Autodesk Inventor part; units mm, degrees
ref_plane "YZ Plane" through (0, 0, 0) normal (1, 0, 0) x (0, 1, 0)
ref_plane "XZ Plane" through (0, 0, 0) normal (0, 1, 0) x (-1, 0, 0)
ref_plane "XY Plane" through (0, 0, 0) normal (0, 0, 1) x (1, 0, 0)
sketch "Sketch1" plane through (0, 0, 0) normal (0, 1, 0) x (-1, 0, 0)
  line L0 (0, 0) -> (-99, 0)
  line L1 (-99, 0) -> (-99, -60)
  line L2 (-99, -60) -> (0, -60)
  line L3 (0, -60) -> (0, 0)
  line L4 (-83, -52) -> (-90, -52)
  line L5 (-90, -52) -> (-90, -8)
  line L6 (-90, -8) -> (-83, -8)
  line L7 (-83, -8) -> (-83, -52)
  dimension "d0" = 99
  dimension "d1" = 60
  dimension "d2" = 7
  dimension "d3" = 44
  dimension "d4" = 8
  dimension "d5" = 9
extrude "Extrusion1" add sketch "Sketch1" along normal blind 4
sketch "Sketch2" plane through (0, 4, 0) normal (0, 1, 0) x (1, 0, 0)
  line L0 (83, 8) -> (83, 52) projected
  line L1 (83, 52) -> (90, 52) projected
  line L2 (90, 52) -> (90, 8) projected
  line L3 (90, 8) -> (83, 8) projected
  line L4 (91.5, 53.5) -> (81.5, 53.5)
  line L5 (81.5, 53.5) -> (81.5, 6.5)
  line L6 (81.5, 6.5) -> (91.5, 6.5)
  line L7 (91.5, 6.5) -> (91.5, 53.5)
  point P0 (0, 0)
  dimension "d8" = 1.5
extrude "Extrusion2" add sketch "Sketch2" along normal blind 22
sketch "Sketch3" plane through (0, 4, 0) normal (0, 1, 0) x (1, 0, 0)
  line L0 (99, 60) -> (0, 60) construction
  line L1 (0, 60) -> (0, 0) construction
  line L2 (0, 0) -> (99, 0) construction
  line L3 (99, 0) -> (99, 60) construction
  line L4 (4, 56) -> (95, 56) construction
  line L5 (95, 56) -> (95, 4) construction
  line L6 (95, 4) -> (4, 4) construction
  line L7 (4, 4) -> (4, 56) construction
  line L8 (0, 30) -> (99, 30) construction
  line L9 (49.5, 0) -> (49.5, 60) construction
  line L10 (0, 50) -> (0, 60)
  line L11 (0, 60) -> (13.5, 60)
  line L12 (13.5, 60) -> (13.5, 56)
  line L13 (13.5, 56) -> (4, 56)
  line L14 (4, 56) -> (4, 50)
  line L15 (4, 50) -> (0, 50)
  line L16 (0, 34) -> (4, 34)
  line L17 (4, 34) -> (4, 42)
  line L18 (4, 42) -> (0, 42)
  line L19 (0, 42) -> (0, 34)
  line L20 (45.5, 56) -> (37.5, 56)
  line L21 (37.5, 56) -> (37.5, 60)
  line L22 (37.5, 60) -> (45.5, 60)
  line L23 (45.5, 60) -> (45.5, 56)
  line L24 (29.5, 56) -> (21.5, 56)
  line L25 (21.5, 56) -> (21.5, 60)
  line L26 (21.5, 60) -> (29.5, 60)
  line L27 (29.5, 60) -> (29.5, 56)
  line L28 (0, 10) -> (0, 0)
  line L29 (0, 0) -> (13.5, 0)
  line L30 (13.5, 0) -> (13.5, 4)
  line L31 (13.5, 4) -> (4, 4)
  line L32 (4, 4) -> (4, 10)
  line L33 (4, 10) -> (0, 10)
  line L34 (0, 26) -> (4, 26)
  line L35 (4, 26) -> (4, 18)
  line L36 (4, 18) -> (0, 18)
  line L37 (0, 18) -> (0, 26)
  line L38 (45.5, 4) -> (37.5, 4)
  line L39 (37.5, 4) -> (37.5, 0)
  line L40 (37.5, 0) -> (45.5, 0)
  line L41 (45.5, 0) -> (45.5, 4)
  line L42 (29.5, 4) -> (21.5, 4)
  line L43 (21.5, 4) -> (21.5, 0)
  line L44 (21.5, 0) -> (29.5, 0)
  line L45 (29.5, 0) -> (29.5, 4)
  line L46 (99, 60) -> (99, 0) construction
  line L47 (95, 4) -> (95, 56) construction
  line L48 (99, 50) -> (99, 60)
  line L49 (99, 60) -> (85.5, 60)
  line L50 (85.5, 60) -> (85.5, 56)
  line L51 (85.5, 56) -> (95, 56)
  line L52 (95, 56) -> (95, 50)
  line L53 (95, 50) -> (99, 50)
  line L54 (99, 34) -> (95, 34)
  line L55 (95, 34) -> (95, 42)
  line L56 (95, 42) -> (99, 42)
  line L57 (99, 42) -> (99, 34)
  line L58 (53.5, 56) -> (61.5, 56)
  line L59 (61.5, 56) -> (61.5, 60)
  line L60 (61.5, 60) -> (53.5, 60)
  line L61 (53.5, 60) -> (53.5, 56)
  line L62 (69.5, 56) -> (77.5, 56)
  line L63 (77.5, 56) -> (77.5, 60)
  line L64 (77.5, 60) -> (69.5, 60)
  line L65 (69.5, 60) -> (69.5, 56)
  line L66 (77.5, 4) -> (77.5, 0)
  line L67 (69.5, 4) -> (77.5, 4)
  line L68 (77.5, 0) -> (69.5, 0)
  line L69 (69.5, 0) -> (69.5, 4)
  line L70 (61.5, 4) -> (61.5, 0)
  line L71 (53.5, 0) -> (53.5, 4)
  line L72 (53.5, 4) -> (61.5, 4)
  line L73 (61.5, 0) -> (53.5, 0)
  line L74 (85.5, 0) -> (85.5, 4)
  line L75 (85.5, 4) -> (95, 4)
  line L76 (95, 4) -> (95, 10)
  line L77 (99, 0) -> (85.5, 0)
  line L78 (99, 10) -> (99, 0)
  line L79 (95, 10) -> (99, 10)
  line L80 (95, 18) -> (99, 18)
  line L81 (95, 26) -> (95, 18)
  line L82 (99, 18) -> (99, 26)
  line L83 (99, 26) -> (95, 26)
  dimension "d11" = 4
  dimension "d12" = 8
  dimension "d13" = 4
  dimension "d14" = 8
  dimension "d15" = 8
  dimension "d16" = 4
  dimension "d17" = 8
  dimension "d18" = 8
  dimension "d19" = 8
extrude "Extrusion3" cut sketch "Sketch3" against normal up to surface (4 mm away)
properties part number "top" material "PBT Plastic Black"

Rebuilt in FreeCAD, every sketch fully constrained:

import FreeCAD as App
import Part
import Sketcher
from FreeCAD import Vector

doc = App.newDocument("Part")
body = doc.addObject("PartDesign::Body", "Body")

# Sketch on XZ plane
sketch1 = body.newObject("Sketcher::SketchObject", "Sketch")
sketch1.AttachmentSupport = (doc.getObject("XZ_Plane"), [""])
sketch1.MapMode = "FlatFace"
sketch1.addGeometry([
    Part.LineSegment(Vector(0, -60, 0), Vector(0, 0, 0)),  # 0
    Part.LineSegment(Vector(0, 0, 0), Vector(99, 0, 0)),  # 1
    Part.LineSegment(Vector(99, 0, 0), Vector(99, -60, 0)),  # 2
    Part.LineSegment(Vector(99, -60, 0), Vector(0, -60, 0)),  # 3
    Part.LineSegment(Vector(83, -8, 0), Vector(83, -52, 0)),  # 4
    Part.LineSegment(Vector(83, -52, 0), Vector(90, -52, 0)),  # 5
    Part.LineSegment(Vector(90, -52, 0), Vector(90, -8, 0)),  # 6
    Part.LineSegment(Vector(90, -8, 0), Vector(83, -8, 0)),  # 7
], False)
sketch1.addConstraint([
    Sketcher.Constraint("Coincident", 0, 2, 1, 1),
    Sketcher.Constraint("Coincident", 1, 2, 2, 1),
    Sketcher.Constraint("Coincident", 2, 2, 3, 1),
    Sketcher.Constraint("Coincident", 3, 2, 0, 1),
    Sketcher.Constraint("Coincident", 4, 2, 5, 1),
    Sketcher.Constraint("Coincident", 5, 2, 6, 1),
    Sketcher.Constraint("Coincident", 6, 2, 7, 1),
    Sketcher.Constraint("Coincident", 7, 2, 4, 1),
    Sketcher.Constraint("Vertical", 0),
    Sketcher.Constraint("Horizontal", 1),
    Sketcher.Constraint("Vertical", 2),
    Sketcher.Constraint("Horizontal", 3),
    Sketcher.Constraint("Vertical", 4),
    Sketcher.Constraint("Horizontal", 5),
    Sketcher.Constraint("Vertical", 6),
    Sketcher.Constraint("Horizontal", 7),
    Sketcher.Constraint("Coincident", 0, 2, -1, 1),
    Sketcher.Constraint("DistanceX", 1, 1, 1, 2, 99.0),
    Sketcher.Constraint("DistanceX", 5, 1, 5, 2, 7.0),
    Sketcher.Constraint("DistanceY", 0, 1, 0, 2, 60.0),
    Sketcher.Constraint("DistanceY", 4, 2, 4, 1, 44.0),
    Sketcher.Constraint("DistanceY", 6, 2, -1, 1, 8.0),
    Sketcher.Constraint("DistanceX", 5, 2, 2, 2, 9.0),
])
pad1 = body.newObject("PartDesign::Pad", "Pad")
pad1.Profile = sketch1
pad1.Length = 4
pad1.Reversed = True

# Sketch on XZ plane
sketch2 = body.newObject("Sketcher::SketchObject", "Sketch001")
sketch2.AttachmentSupport = (doc.getObject("XZ_Plane"), [""])
sketch2.MapMode = "FlatFace"
sketch2.AttachmentOffset = App.Placement(Vector(0, 0, -4), App.Rotation())
sketch2.addGeometry([
    Part.LineSegment(Vector(91.5, -6.5, 0), Vector(91.5, -53.5, 0)),  # 0
    Part.LineSegment(Vector(91.5, -53.5, 0), Vector(81.5, -53.5, 0)),  # 1
    Part.LineSegment(Vector(81.5, -53.5, 0), Vector(81.5, -6.5, 0)),  # 2
    Part.LineSegment(Vector(81.5, -6.5, 0), Vector(91.5, -6.5, 0)),  # 3
    Part.LineSegment(Vector(90, -8, 0), Vector(83, -8, 0)),  # 4
    Part.LineSegment(Vector(83, -8, 0), Vector(83, -52, 0)),  # 5
    Part.LineSegment(Vector(83, -52, 0), Vector(90, -52, 0)),  # 6
    Part.LineSegment(Vector(90, -52, 0), Vector(90, -8, 0)),  # 7
], False)
sketch2.addConstraint([
    Sketcher.Constraint("Coincident", 0, 2, 1, 1),
    Sketcher.Constraint("Coincident", 1, 2, 2, 1),
    Sketcher.Constraint("Coincident", 2, 2, 3, 1),
    Sketcher.Constraint("Coincident", 3, 2, 0, 1),
    Sketcher.Constraint("Coincident", 4, 2, 5, 1),
    Sketcher.Constraint("Coincident", 5, 2, 6, 1),
    Sketcher.Constraint("Coincident", 6, 2, 7, 1),
    Sketcher.Constraint("Coincident", 7, 2, 4, 1),
    Sketcher.Constraint("Vertical", 0),
    Sketcher.Constraint("Horizontal", 1),
    Sketcher.Constraint("Vertical", 2),
    Sketcher.Constraint("Horizontal", 3),
    Sketcher.Constraint("Horizontal", 4),
    Sketcher.Constraint("Vertical", 5),
    Sketcher.Constraint("Horizontal", 6),
    Sketcher.Constraint("Vertical", 7),
    Sketcher.Constraint("DistanceX", 2, 2, 4, 2, 1.5),
    Sketcher.Constraint("DistanceY", 4, 2, 2, 2, 1.5),
    Sketcher.Constraint("DistanceY", 1, 2, 5, 2, 1.5),
    Sketcher.Constraint("DistanceX", 6, 2, 0, 2, 1.5),
    Sketcher.Constraint("DistanceX", 1, 2, 1, 1, 10.0),
    Sketcher.Constraint("DistanceY", 0, 2, 0, 1, 47.0),
    Sketcher.Constraint("DistanceX", -1, 1, 4, 2, 83.0),
    Sketcher.Constraint("DistanceY", 4, 2, -1, 1, 8.0),
])
pad2 = body.newObject("PartDesign::Pad", "Pad001")
pad2.Profile = sketch2
pad2.Length = 22
pad2.Reversed = True

# Sketch on XZ plane
sketch3 = body.newObject("Sketcher::SketchObject", "Sketch002")
sketch3.AttachmentSupport = (doc.getObject("XZ_Plane"), [""])
sketch3.MapMode = "FlatFace"
sketch3.AttachmentOffset = App.Placement(Vector(0, 0, -4), App.Rotation())
sketch3.addGeometry([
    Part.LineSegment(Vector(0, -60, 0), Vector(0, -50, 0)),  # 0
    Part.LineSegment(Vector(0, -50, 0), Vector(4, -50, 0)),  # 1
    Part.LineSegment(Vector(4, -50, 0), Vector(4, -56, 0)),  # 2
    Part.LineSegment(Vector(4, -56, 0), Vector(13.5, -56, 0)),  # 3
    Part.LineSegment(Vector(13.5, -56, 0), Vector(13.5, -60, 0)),  # 4
    Part.LineSegment(Vector(13.5, -60, 0), Vector(0, -60, 0)),  # 5
    Part.LineSegment(Vector(0, -42, 0), Vector(0, -34, 0)),  # 6
    Part.LineSegment(Vector(0, -34, 0), Vector(4, -34, 0)),  # 7
    Part.LineSegment(Vector(4, -34, 0), Vector(4, -42, 0)),  # 8
    Part.LineSegment(Vector(4, -42, 0), Vector(0, -42, 0)),  # 9
    Part.LineSegment(Vector(37.5, -56, 0), Vector(45.5, -56, 0)),  # 10
    Part.LineSegment(Vector(45.5, -56, 0), Vector(45.5, -60, 0)),  # 11
    Part.LineSegment(Vector(45.5, -60, 0), Vector(37.5, -60, 0)),  # 12
    Part.LineSegment(Vector(37.5, -60, 0), Vector(37.5, -56, 0)),  # 13
    Part.LineSegment(Vector(21.5, -56, 0), Vector(29.5, -56, 0)),  # 14
    Part.LineSegment(Vector(29.5, -56, 0), Vector(29.5, -60, 0)),  # 15
    Part.LineSegment(Vector(29.5, -60, 0), Vector(21.5, -60, 0)),  # 16
    Part.LineSegment(Vector(21.5, -60, 0), Vector(21.5, -56, 0)),  # 17
    Part.LineSegment(Vector(4, -10, 0), Vector(0, -10, 0)),  # 18
    Part.LineSegment(Vector(0, -10, 0), Vector(0, 0, 0)),  # 19
    Part.LineSegment(Vector(0, 0, 0), Vector(13.5, 0, 0)),  # 20
    Part.LineSegment(Vector(13.5, 0, 0), Vector(13.5, -4, 0)),  # 21
    Part.LineSegment(Vector(13.5, -4, 0), Vector(4, -4, 0)),  # 22
    Part.LineSegment(Vector(4, -4, 0), Vector(4, -10, 0)),  # 23
    Part.LineSegment(Vector(4, -26, 0), Vector(0, -26, 0)),  # 24
    Part.LineSegment(Vector(0, -26, 0), Vector(0, -18, 0)),  # 25
    Part.LineSegment(Vector(0, -18, 0), Vector(4, -18, 0)),  # 26
    Part.LineSegment(Vector(4, -18, 0), Vector(4, -26, 0)),  # 27
    Part.LineSegment(Vector(45.5, 0, 0), Vector(45.5, -4, 0)),  # 28
    Part.LineSegment(Vector(45.5, -4, 0), Vector(37.5, -4, 0)),  # 29
    Part.LineSegment(Vector(37.5, -4, 0), Vector(37.5, 0, 0)),  # 30
    Part.LineSegment(Vector(37.5, 0, 0), Vector(45.5, 0, 0)),  # 31
    Part.LineSegment(Vector(29.5, 0, 0), Vector(29.5, -4, 0)),  # 32
    Part.LineSegment(Vector(29.5, -4, 0), Vector(21.5, -4, 0)),  # 33
    Part.LineSegment(Vector(21.5, -4, 0), Vector(21.5, 0, 0)),  # 34
    Part.LineSegment(Vector(21.5, 0, 0), Vector(29.5, 0, 0)),  # 35
    Part.LineSegment(Vector(95, -50, 0), Vector(99, -50, 0)),  # 36
    Part.LineSegment(Vector(99, -50, 0), Vector(99, -60, 0)),  # 37
    Part.LineSegment(Vector(99, -60, 0), Vector(85.5, -60, 0)),  # 38
    Part.LineSegment(Vector(85.5, -60, 0), Vector(85.5, -56, 0)),  # 39
    Part.LineSegment(Vector(85.5, -56, 0), Vector(95, -56, 0)),  # 40
    Part.LineSegment(Vector(95, -56, 0), Vector(95, -50, 0)),  # 41
    Part.LineSegment(Vector(95, -34, 0), Vector(99, -34, 0)),  # 42
    Part.LineSegment(Vector(99, -34, 0), Vector(99, -42, 0)),  # 43
    Part.LineSegment(Vector(99, -42, 0), Vector(95, -42, 0)),  # 44
    Part.LineSegment(Vector(95, -42, 0), Vector(95, -34, 0)),  # 45
    Part.LineSegment(Vector(53.5, -60, 0), Vector(53.5, -56, 0)),  # 46
    Part.LineSegment(Vector(53.5, -56, 0), Vector(61.5, -56, 0)),  # 47
    Part.LineSegment(Vector(61.5, -56, 0), Vector(61.5, -60, 0)),  # 48
    Part.LineSegment(Vector(61.5, -60, 0), Vector(53.5, -60, 0)),  # 49
    Part.LineSegment(Vector(69.5, -60, 0), Vector(69.5, -56, 0)),  # 50
    Part.LineSegment(Vector(69.5, -56, 0), Vector(77.5, -56, 0)),  # 51
    Part.LineSegment(Vector(77.5, -56, 0), Vector(77.5, -60, 0)),  # 52
    Part.LineSegment(Vector(77.5, -60, 0), Vector(69.5, -60, 0)),  # 53
    Part.LineSegment(Vector(77.5, 0, 0), Vector(77.5, -4, 0)),  # 54
    Part.LineSegment(Vector(77.5, -4, 0), Vector(69.5, -4, 0)),  # 55
    Part.LineSegment(Vector(69.5, -4, 0), Vector(69.5, 0, 0)),  # 56
    Part.LineSegment(Vector(69.5, 0, 0), Vector(77.5, 0, 0)),  # 57
    Part.LineSegment(Vector(61.5, 0, 0), Vector(61.5, -4, 0)),  # 58
    Part.LineSegment(Vector(61.5, -4, 0), Vector(53.5, -4, 0)),  # 59
    Part.LineSegment(Vector(53.5, -4, 0), Vector(53.5, 0, 0)),  # 60
    Part.LineSegment(Vector(53.5, 0, 0), Vector(61.5, 0, 0)),  # 61
    Part.LineSegment(Vector(85.5, -4, 0), Vector(85.5, 0, 0)),  # 62
    Part.LineSegment(Vector(85.5, 0, 0), Vector(99, 0, 0)),  # 63
    Part.LineSegment(Vector(99, 0, 0), Vector(99, -10, 0)),  # 64
    Part.LineSegment(Vector(99, -10, 0), Vector(95, -10, 0)),  # 65
    Part.LineSegment(Vector(95, -10, 0), Vector(95, -4, 0)),  # 66
    Part.LineSegment(Vector(95, -4, 0), Vector(85.5, -4, 0)),  # 67
    Part.LineSegment(Vector(95, -26, 0), Vector(95, -18, 0)),  # 68
    Part.LineSegment(Vector(95, -18, 0), Vector(99, -18, 0)),  # 69
    Part.LineSegment(Vector(99, -18, 0), Vector(99, -26, 0)),  # 70
    Part.LineSegment(Vector(99, -26, 0), Vector(95, -26, 0)),  # 71
], False)
sketch3.addConstraint([
    Sketcher.Constraint("Coincident", 0, 2, 1, 1),
    Sketcher.Constraint("Coincident", 1, 2, 2, 1),
    Sketcher.Constraint("Coincident", 2, 2, 3, 1),
    Sketcher.Constraint("Coincident", 3, 2, 4, 1),
    Sketcher.Constraint("Coincident", 4, 2, 5, 1),
    Sketcher.Constraint("Coincident", 5, 2, 0, 1),
    Sketcher.Constraint("Coincident", 6, 2, 7, 1),
    Sketcher.Constraint("Coincident", 7, 2, 8, 1),
    Sketcher.Constraint("Coincident", 8, 2, 9, 1),
    Sketcher.Constraint("Coincident", 9, 2, 6, 1),
    Sketcher.Constraint("Coincident", 10, 2, 11, 1),
    Sketcher.Constraint("Coincident", 11, 2, 12, 1),
    Sketcher.Constraint("Coincident", 12, 2, 13, 1),
    Sketcher.Constraint("Coincident", 13, 2, 10, 1),
    Sketcher.Constraint("Coincident", 14, 2, 15, 1),
    Sketcher.Constraint("Coincident", 15, 2, 16, 1),
    Sketcher.Constraint("Coincident", 16, 2, 17, 1),
    Sketcher.Constraint("Coincident", 17, 2, 14, 1),
    Sketcher.Constraint("Coincident", 18, 2, 19, 1),
    Sketcher.Constraint("Coincident", 19, 2, 20, 1),
    Sketcher.Constraint("Coincident", 20, 2, 21, 1),
    Sketcher.Constraint("Coincident", 21, 2, 22, 1),
    Sketcher.Constraint("Coincident", 22, 2, 23, 1),
    Sketcher.Constraint("Coincident", 23, 2, 18, 1),
    Sketcher.Constraint("Coincident", 24, 2, 25, 1),
    Sketcher.Constraint("Coincident", 25, 2, 26, 1),
    Sketcher.Constraint("Coincident", 26, 2, 27, 1),
    Sketcher.Constraint("Coincident", 27, 2, 24, 1),
    Sketcher.Constraint("Coincident", 28, 2, 29, 1),
    Sketcher.Constraint("Coincident", 29, 2, 30, 1),
    Sketcher.Constraint("Coincident", 30, 2, 31, 1),
    Sketcher.Constraint("Coincident", 31, 2, 28, 1),
    Sketcher.Constraint("Coincident", 32, 2, 33, 1),
    Sketcher.Constraint("Coincident", 33, 2, 34, 1),
    Sketcher.Constraint("Coincident", 34, 2, 35, 1),
    Sketcher.Constraint("Coincident", 35, 2, 32, 1),
    Sketcher.Constraint("Coincident", 36, 2, 37, 1),
    Sketcher.Constraint("Coincident", 37, 2, 38, 1),
    Sketcher.Constraint("Coincident", 38, 2, 39, 1),
    Sketcher.Constraint("Coincident", 39, 2, 40, 1),
    Sketcher.Constraint("Coincident", 40, 2, 41, 1),
    Sketcher.Constraint("Coincident", 41, 2, 36, 1),
    Sketcher.Constraint("Coincident", 42, 2, 43, 1),
    Sketcher.Constraint("Coincident", 43, 2, 44, 1),
    Sketcher.Constraint("Coincident", 44, 2, 45, 1),
    Sketcher.Constraint("Coincident", 45, 2, 42, 1),
    Sketcher.Constraint("Coincident", 46, 2, 47, 1),
    Sketcher.Constraint("Coincident", 47, 2, 48, 1),
    Sketcher.Constraint("Coincident", 48, 2, 49, 1),
    Sketcher.Constraint("Coincident", 49, 2, 46, 1),
    Sketcher.Constraint("Coincident", 50, 2, 51, 1),
    Sketcher.Constraint("Coincident", 51, 2, 52, 1),
    Sketcher.Constraint("Coincident", 52, 2, 53, 1),
    Sketcher.Constraint("Coincident", 53, 2, 50, 1),
    Sketcher.Constraint("Coincident", 54, 2, 55, 1),
    Sketcher.Constraint("Coincident", 55, 2, 56, 1),
    Sketcher.Constraint("Coincident", 56, 2, 57, 1),
    Sketcher.Constraint("Coincident", 57, 2, 54, 1),
    Sketcher.Constraint("Coincident", 58, 2, 59, 1),
    Sketcher.Constraint("Coincident", 59, 2, 60, 1),
    Sketcher.Constraint("Coincident", 60, 2, 61, 1),
    Sketcher.Constraint("Coincident", 61, 2, 58, 1),
    Sketcher.Constraint("Coincident", 62, 2, 63, 1),
    Sketcher.Constraint("Coincident", 63, 2, 64, 1),
    Sketcher.Constraint("Coincident", 64, 2, 65, 1),
    Sketcher.Constraint("Coincident", 65, 2, 66, 1),
    Sketcher.Constraint("Coincident", 66, 2, 67, 1),
    Sketcher.Constraint("Coincident", 67, 2, 62, 1),
    Sketcher.Constraint("Coincident", 68, 2, 69, 1),
    Sketcher.Constraint("Coincident", 69, 2, 70, 1),
    Sketcher.Constraint("Coincident", 70, 2, 71, 1),
    Sketcher.Constraint("Coincident", 71, 2, 68, 1),
    Sketcher.Constraint("Vertical", 0),
    Sketcher.Constraint("Horizontal", 1),
    Sketcher.Constraint("Vertical", 2),
    Sketcher.Constraint("Horizontal", 3),
    Sketcher.Constraint("Vertical", 4),
    Sketcher.Constraint("Horizontal", 5),
    Sketcher.Constraint("Vertical", 6),
    Sketcher.Constraint("Horizontal", 7),
    Sketcher.Constraint("Vertical", 8),
    Sketcher.Constraint("Horizontal", 9),
    Sketcher.Constraint("Horizontal", 10),
    Sketcher.Constraint("Vertical", 11),
    Sketcher.Constraint("Horizontal", 12),
    Sketcher.Constraint("Vertical", 13),
    Sketcher.Constraint("Horizontal", 14),
    Sketcher.Constraint("Vertical", 15),
    Sketcher.Constraint("Horizontal", 16),
    Sketcher.Constraint("Vertical", 17),
    Sketcher.Constraint("Horizontal", 18),
    Sketcher.Constraint("Vertical", 19),
    Sketcher.Constraint("Horizontal", 20),
    Sketcher.Constraint("Vertical", 21),
    Sketcher.Constraint("Horizontal", 22),
    Sketcher.Constraint("Vertical", 23),
    Sketcher.Constraint("Horizontal", 24),
    Sketcher.Constraint("Vertical", 25),
    Sketcher.Constraint("Horizontal", 26),
    Sketcher.Constraint("Vertical", 27),
    Sketcher.Constraint("Vertical", 28),
    Sketcher.Constraint("Horizontal", 29),
    Sketcher.Constraint("Vertical", 30),
    Sketcher.Constraint("Horizontal", 31),
    Sketcher.Constraint("Vertical", 32),
    Sketcher.Constraint("Horizontal", 33),
    Sketcher.Constraint("Vertical", 34),
    Sketcher.Constraint("Horizontal", 35),
    Sketcher.Constraint("Horizontal", 36),
    Sketcher.Constraint("Vertical", 37),
    Sketcher.Constraint("Horizontal", 38),
    Sketcher.Constraint("Vertical", 39),
    Sketcher.Constraint("Horizontal", 40),
    Sketcher.Constraint("Vertical", 41),
    Sketcher.Constraint("Horizontal", 42),
    Sketcher.Constraint("Vertical", 43),
    Sketcher.Constraint("Horizontal", 44),
    Sketcher.Constraint("Vertical", 45),
    Sketcher.Constraint("Vertical", 46),
    Sketcher.Constraint("Horizontal", 47),
    Sketcher.Constraint("Vertical", 48),
    Sketcher.Constraint("Horizontal", 49),
    Sketcher.Constraint("Vertical", 50),
    Sketcher.Constraint("Horizontal", 51),
    Sketcher.Constraint("Vertical", 52),
    Sketcher.Constraint("Horizontal", 53),
    Sketcher.Constraint("Vertical", 54),
    Sketcher.Constraint("Horizontal", 55),
    Sketcher.Constraint("Vertical", 56),
    Sketcher.Constraint("Horizontal", 57),
    Sketcher.Constraint("Vertical", 58),
    Sketcher.Constraint("Horizontal", 59),
    Sketcher.Constraint("Vertical", 60),
    Sketcher.Constraint("Horizontal", 61),
    Sketcher.Constraint("Vertical", 62),
    Sketcher.Constraint("Horizontal", 63),
    Sketcher.Constraint("Vertical", 64),
    Sketcher.Constraint("Horizontal", 65),
    Sketcher.Constraint("Vertical", 66),
    Sketcher.Constraint("Horizontal", 67),
    Sketcher.Constraint("Vertical", 68),
    Sketcher.Constraint("Horizontal", 69),
    Sketcher.Constraint("Vertical", 70),
    Sketcher.Constraint("Horizontal", 71),
    Sketcher.Constraint("Coincident", 19, 2, -1, 1),
    Sketcher.Constraint("PointOnObject", 0, 2, -2),
    Sketcher.Constraint("PointOnObject", 6, 2, -2),
    Sketcher.Constraint("PointOnObject", 24, 2, -2),
    Sketcher.Constraint("PointOnObject", 30, 2, -1),
    Sketcher.Constraint("PointOnObject", 34, 2, -1),
    Sketcher.Constraint("PointOnObject", 56, 2, -1),
    Sketcher.Constraint("PointOnObject", 60, 2, -1),
    Sketcher.Constraint("PointOnObject", 62, 2, -1),
    Sketcher.Constraint("Horizontal", 3, 2, 10, 2),
    Sketcher.Constraint("Horizontal", 5, 2, 11, 2),
    Sketcher.Constraint("Horizontal", 13, 2, 14, 2),
    Sketcher.Constraint("Horizontal", 12, 2, 15, 2),
    Sketcher.Constraint("Horizontal", 22, 2, 28, 2),
    Sketcher.Constraint("Horizontal", 29, 2, 32, 2),
    Sketcher.Constraint("Horizontal", 1, 2, 36, 2),
    Sketcher.Constraint("Horizontal", 16, 2, 37, 2),
    Sketcher.Constraint("Horizontal", 17, 2, 39, 2),
    Sketcher.Constraint("Horizontal", 7, 2, 42, 2),
    Sketcher.Constraint("Horizontal", 9, 2, 43, 2),
    Sketcher.Constraint("Horizontal", 40, 2, 46, 2),
    Sketcher.Constraint("Horizontal", 38, 2, 48, 2),
    Sketcher.Constraint("Horizontal", 47, 2, 50, 2),
    Sketcher.Constraint("Horizontal", 49, 2, 52, 2),
    Sketcher.Constraint("Horizontal", 33, 2, 54, 2),
    Sketcher.Constraint("Horizontal", 55, 2, 58, 2),
    Sketcher.Constraint("Horizontal", 23, 2, 64, 2),
    Sketcher.Constraint("Horizontal", 59, 2, 66, 2),
    Sketcher.Constraint("Horizontal", 26, 2, 68, 2),
    Sketcher.Constraint("Horizontal", 27, 2, 70, 2),
    Sketcher.Constraint("Vertical", 2, 2, 7, 2),
    Sketcher.Constraint("Vertical", 4, 2, 20, 2),
    Sketcher.Constraint("Vertical", 8, 2, 22, 2),
    Sketcher.Constraint("Vertical", 23, 2, 26, 2),
    Sketcher.Constraint("Vertical", 11, 2, 28, 2),
    Sketcher.Constraint("Vertical", 13, 2, 29, 2),
    Sketcher.Constraint("Vertical", 15, 2, 32, 2),
    Sketcher.Constraint("Vertical", 17, 2, 33, 2),
    Sketcher.Constraint("Vertical", 37, 2, 42, 2),
    Sketcher.Constraint("Vertical", 41, 2, 44, 2),
    Sketcher.Constraint("Vertical", 52, 2, 54, 2),
    Sketcher.Constraint("Vertical", 53, 2, 55, 2),
    Sketcher.Constraint("Vertical", 48, 2, 58, 2),
    Sketcher.Constraint("Vertical", 49, 2, 59, 2),
    Sketcher.Constraint("Vertical", 39, 2, 62, 2),
    Sketcher.Constraint("Vertical", 43, 2, 63, 2),
    Sketcher.Constraint("Vertical", 45, 2, 65, 2),
    Sketcher.Constraint("Vertical", 66, 2, 68, 2),
    Sketcher.Constraint("Vertical", 64, 2, 69, 2),
    Sketcher.Constraint("Equal", 12, 14),
    Sketcher.Constraint("Equal", 26, 36),
    Sketcher.Constraint("Equal", 20, 38),
    Sketcher.Constraint("Equal", 35, 47),
    Sketcher.Constraint("Equal", 49, 51),
    Sketcher.Constraint("Equal", 71, 4),
    Sketcher.Constraint("Equal", 61, 6),
    Sketcher.Constraint("Equal", 0, 19),
    Sketcher.Constraint("Equal", 17, 21),
    Sketcher.Constraint("Equal", 8, 25),
    Sketcher.Constraint("DistanceX", 1, 1, 1, 2, 4.0),
    Sketcher.Constraint("DistanceX", 10, 1, 10, 2, 8.0),
    Sketcher.Constraint("DistanceY", 0, 1, 0, 2, 10.0),
    Sketcher.Constraint("DistanceX", 3, 1, 3, 2, 9.5),
    Sketcher.Constraint("DistanceY", 0, 2, -1, 1, 50.0),
    Sketcher.Constraint("DistanceY", 6, 2, -1, 1, 34.0),
    Sketcher.Constraint("DistanceY", 24, 2, -1, 1, 26.0),
    Sketcher.Constraint("DistanceX", -1, 1, 36, 2, 99.0),
    Sketcher.Constraint("DistanceX", -1, 1, 10, 2, 45.5),
    Sketcher.Constraint("DistanceX", -1, 1, 14, 2, 29.5),
    Sketcher.Constraint("DistanceX", -1, 1, 46, 2, 53.5),
    Sketcher.Constraint("DistanceX", -1, 1, 50, 2, 69.5),
])
pocket1 = body.newObject("PartDesign::Pocket", "Pocket")
pocket1.Profile = sketch3
pocket1.Length = 4
pocket1.Reversed = True

doc.recompute()
